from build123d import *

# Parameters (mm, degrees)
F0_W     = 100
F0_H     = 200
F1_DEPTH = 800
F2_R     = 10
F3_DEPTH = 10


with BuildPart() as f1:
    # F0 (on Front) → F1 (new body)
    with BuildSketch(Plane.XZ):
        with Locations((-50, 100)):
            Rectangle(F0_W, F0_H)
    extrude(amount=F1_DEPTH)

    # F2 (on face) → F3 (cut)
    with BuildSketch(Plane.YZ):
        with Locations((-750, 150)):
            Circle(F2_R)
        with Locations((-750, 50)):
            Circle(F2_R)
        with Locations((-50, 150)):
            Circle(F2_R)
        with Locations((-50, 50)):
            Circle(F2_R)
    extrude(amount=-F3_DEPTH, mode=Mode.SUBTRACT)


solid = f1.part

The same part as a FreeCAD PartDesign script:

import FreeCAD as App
import Part
import Sketcher

V = App.Vector
Q = App.Units.Quantity


def add_polygon(sketch, points):
    """Adds a closed chain of lines whose ends are joined by coincident constraints."""
    first, n = sketch.GeometryCount, len(points)
    for a, b in zip(points, points[1:] + points[:1]):
        sketch.addGeometry(Part.LineSegment(App.Vector(*a, 0), App.Vector(*b, 0)), False)
    for i in range(n):
        sketch.addConstraint(Sketcher.Constraint("Coincident", first + i, 2, first + (i + 1) % n, 1))

doc = App.newDocument("Part")
body = doc.addObject("PartDesign::Body", "Body")

# Sketch on XZ plane
sketch1 = doc.addObject("Sketcher::SketchObject", "Sketch")
body.addObject(sketch1)
sketch1.AttachmentSupport = (doc.XZ_Plane, [""])
sketch1.MapMode = "FlatFace"
add_polygon(sketch1, [(-100, 200), (-100, 0), (0, 0), (0, 200)])  # lines 0-3
sketch1.addConstraint([
    Sketcher.Constraint("Vertical", 0),
    Sketcher.Constraint("Horizontal", 1),
    Sketcher.Constraint("Vertical", 2),
    Sketcher.Constraint("Horizontal", 3),
    Sketcher.Constraint("Coincident", 1, 2, -1, 1),
    Sketcher.Constraint("DistanceX", 1, 1, 1, 2, Q("100 mm")),
    Sketcher.Constraint("DistanceY", 0, 2, 0, 1, Q("200 mm")),
])
pad1 = doc.addObject("PartDesign::Pad", "Pad")
body.addObject(pad1)
pad1.Profile = sketch1
pad1.Length = 800

# Sketch on YZ plane
sketch2 = doc.addObject("Sketcher::SketchObject", "Sketch001")
body.addObject(sketch2)
sketch2.AttachmentSupport = (doc.YZ_Plane, [""])
sketch2.MapMode = "FlatFace"
sketch2.addGeometry([
    Part.Circle(V(-750, 150, 0), V(0, 0, 1), 10),
    Part.Circle(V(-750, 50, 0), V(0, 0, 1), 10),
    Part.Circle(V(-50, 150, 0), V(0, 0, 1), 10),
    Part.Circle(V(-50, 50, 0), V(0, 0, 1), 10),
], False)
sketch2.addConstraint([
    Sketcher.Constraint("Equal", 0, 1),
    Sketcher.Constraint("Equal", 1, 2),
    Sketcher.Constraint("Equal", 2, 3),
    Sketcher.Constraint("Horizontal", 0, 3, 2, 3),
    Sketcher.Constraint("Horizontal", 1, 3, 3, 3),
    Sketcher.Constraint("Vertical", 0, 3, 1, 3),
    Sketcher.Constraint("Vertical", 2, 3, 3, 3),
    Sketcher.Constraint("Diameter", 0, Q("20 mm")),
    Sketcher.Constraint("DistanceX", 0, 3, -1, 1, Q("750 mm")),
    Sketcher.Constraint("DistanceY", -1, 1, 0, 3, Q("150 mm")),
    Sketcher.Constraint("DistanceY", -1, 1, 1, 3, Q("50 mm")),
    Sketcher.Constraint("DistanceX", 2, 3, -1, 1, Q("50 mm")),
])
pocket1 = doc.addObject("PartDesign::Pocket", "Pocket")
body.addObject(pocket1)
pocket1.Profile = sketch2
pocket1.Length = 10

doc.recompute()
